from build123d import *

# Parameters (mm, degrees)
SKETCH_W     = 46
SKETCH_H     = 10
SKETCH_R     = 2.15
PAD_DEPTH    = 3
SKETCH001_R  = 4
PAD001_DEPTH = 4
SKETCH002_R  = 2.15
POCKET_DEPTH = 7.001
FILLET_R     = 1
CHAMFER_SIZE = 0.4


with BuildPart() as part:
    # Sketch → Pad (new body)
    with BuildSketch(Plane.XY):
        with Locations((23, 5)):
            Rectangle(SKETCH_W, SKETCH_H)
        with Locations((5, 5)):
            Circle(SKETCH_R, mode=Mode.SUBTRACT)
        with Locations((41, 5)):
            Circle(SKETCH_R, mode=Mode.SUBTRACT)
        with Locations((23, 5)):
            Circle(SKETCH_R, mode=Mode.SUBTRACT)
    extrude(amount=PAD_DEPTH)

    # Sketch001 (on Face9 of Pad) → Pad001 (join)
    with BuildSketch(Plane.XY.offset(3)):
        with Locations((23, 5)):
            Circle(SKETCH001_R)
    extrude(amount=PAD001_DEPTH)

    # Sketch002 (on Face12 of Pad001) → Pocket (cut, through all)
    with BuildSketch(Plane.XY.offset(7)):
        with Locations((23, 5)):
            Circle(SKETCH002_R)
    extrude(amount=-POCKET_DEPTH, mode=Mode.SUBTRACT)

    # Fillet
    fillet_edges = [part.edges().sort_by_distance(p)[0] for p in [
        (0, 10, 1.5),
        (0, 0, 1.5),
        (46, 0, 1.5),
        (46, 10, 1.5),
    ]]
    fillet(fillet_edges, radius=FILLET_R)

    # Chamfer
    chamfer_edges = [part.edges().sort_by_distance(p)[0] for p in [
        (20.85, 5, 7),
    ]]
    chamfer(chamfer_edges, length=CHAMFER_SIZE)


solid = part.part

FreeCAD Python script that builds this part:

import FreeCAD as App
import Part
import Sketcher
from FreeCAD import Vector
Q = App.Units.Quantity


def edges_at(feature, points):
    """Names of the edges that pass closest to the given points."""
    edges = feature.Shape.Edges
    near = lambda p: min(range(len(edges)), key=lambda i: edges[i].distToShape(Part.Vertex(*p))[0])
    return sorted({f"Edge{near(p) + 1}" for p in points})


def add_polygon(sketch, points):
    """Adds a closed chain of lines whose ends are joined by coincident constraints."""
    first, n = sketch.GeometryCount, len(points)
    for a, b in zip(points, points[1:] + points[:1]):
        sketch.addGeometry(Part.LineSegment(App.Vector(*a, 0), App.Vector(*b, 0)), False)
    for i in range(n):
        sketch.addConstraint(Sketcher.Constraint("Coincident", first + i, 2, first + (i + 1) % n, 1))

doc = App.newDocument("Part")
params = doc.addObject("Spreadsheet::Sheet", "Params")
for row, (alias, value) in enumerate([
    ("sketch1_diameter", "4.3 mm"),
    ("sketch1_width", "46 mm"),
    ("sketch1_height", "10 mm"),
    ("pad1_length", "3 mm"),
    ("sketch2_diameter", "8 mm"),
    ("pad2_length", "4 mm"),
    ("sketch3_diameter", "4.3 mm"),
    ("fillet_radius", "1 mm"),
    ("chamfer_size", "0.4 mm"),
], start=1):
    params.set(f"A{row}", alias)
    params.set(f"B{row}", "=" + value)
    params.setAlias(f"B{row}", alias)

body = doc.addObject("PartDesign::Body", "Body")

# Sketch on XY plane
sketch1 = body.newObject("Sketcher::SketchObject", "Sketch")
sketch1.AttachmentSupport = (doc.getObject("XY_Plane"), [""])
sketch1.MapMode = "FlatFace"
add_polygon(sketch1, [(0, 10), (0, 0), (46, 0), (46, 10)])  # lines 0-3
sketch1.addGeometry(Part.Circle(Vector(5, 5, 0), Vector(0, 0, 1), 2.1), False)  # 4
sketch1.addGeometry(Part.Circle(Vector(23, 5, 0), Vector(0, 0, 1), 2.1), False)  # 5
sketch1.addGeometry(Part.Circle(Vector(41, 5, 0), Vector(0, 0, 1), 2.1), False)  # 6
sketch1.addConstraint(Sketcher.Constraint("Vertical", 0))
sketch1.addConstraint(Sketcher.Constraint("Horizontal", 1))
sketch1.addConstraint(Sketcher.Constraint("Vertical", 2))
sketch1.addConstraint(Sketcher.Constraint("Horizontal", 3))
sketch1.addConstraint(Sketcher.Constraint("Coincident", 0, 2, -1, 1))
sketch1.addConstraint(Sketcher.Constraint("Equal", 4, 5))
sketch1.addConstraint(Sketcher.Constraint("Equal", 5, 6))
sketch1.addConstraint(Sketcher.Constraint("Horizontal", 4, 3, 5, 3))
sketch1.addConstraint(Sketcher.Constraint("Horizontal", 5, 3, 6, 3))
sketch1.addConstraint(Sketcher.Constraint("Diameter", 4, Q("4.3 mm")))
sketch1.addConstraint(Sketcher.Constraint("DistanceX", 1, 1, 1, 2, Q("46 mm")))
sketch1.addConstraint(Sketcher.Constraint("DistanceY", 0, 2, 0, 1, Q("10 mm")))
sketch1.addConstraint(Sketcher.Constraint("DistanceX", -1, 1, 4, 3, Q("5 mm")))
sketch1.addConstraint(Sketcher.Constraint("DistanceY", -1, 1, 4, 3, Q("5 mm")))
sketch1.addConstraint(Sketcher.Constraint("DistanceX", -1, 1, 5, 3, Q("23 mm")))
sketch1.addConstraint(Sketcher.Constraint("DistanceX", -1, 1, 6, 3, Q("41 mm")))
sketch1.setExpression("Constraints[13]", "Params.sketch1_diameter")
sketch1.setExpression("Constraints[14]", "Params.sketch1_width")
sketch1.setExpression("Constraints[15]", "Params.sketch1_height")
pad1 = body.newObject("PartDesign::Pad", "Pad")
pad1.Profile = sketch1
pad1.setExpression("Length", "Params.pad1_length")

# Sketch on XY plane
sketch2 = body.newObject("Sketcher::SketchObject", "Sketch001")
sketch2.AttachmentSupport = (doc.getObject("XY_Plane"), [""])
sketch2.MapMode = "FlatFace"
sketch2.AttachmentOffset = App.Placement(Vector(0, 0, 3), App.Rotation())
sketch2.addGeometry(Part.Circle(Vector(23, 5, 0), Vector(0, 0, 1), 4), False)
sketch2.addConstraint(Sketcher.Constraint("Diameter", 0, Q("8 mm")))
sketch2.addConstraint(Sketcher.Constraint("DistanceX", -1, 1, 0, 3, Q("23 mm")))
sketch2.addConstraint(Sketcher.Constraint("DistanceY", -1, 1, 0, 3, Q("5 mm")))
sketch2.setExpression("Constraints[0]", "Params.sketch2_diameter")
pad2 = body.newObject("PartDesign::Pad", "Pad001")
pad2.Profile = sketch2
pad2.setExpression("Length", "Params.pad2_length")

# Sketch on XY plane
sketch3 = body.newObject("Sketcher::SketchObject", "Sketch002")
sketch3.AttachmentSupport = (doc.getObject("XY_Plane"), [""])
sketch3.MapMode = "FlatFace"
sketch3.AttachmentOffset = App.Placement(Vector(0, 0, 7), App.Rotation())
sketch3.addGeometry(Part.Circle(Vector(23, 5, 0), Vector(0, 0, 1), 2.1), False)
sketch3.addConstraint(Sketcher.Constraint("Diameter", 0, Q("4.3 mm")))
sketch3.addConstraint(Sketcher.Constraint("DistanceX", -1, 1, 0, 3, Q("23 mm")))
sketch3.addConstraint(Sketcher.Constraint("DistanceY", -1, 1, 0, 3, Q("5 mm")))
sketch3.setExpression("Constraints[0]", "Params.sketch3_diameter")
pocket1 = body.newObject("PartDesign::Pocket", "Pocket")
pocket1.Profile = sketch3
pocket1.Type = "ThroughAll"
doc.recompute()

fillet = body.newObject("PartDesign::Fillet", "Fillet")
fillet.Base = (pocket1, edges_at(pocket1, [
    (0, 10, 1.5),
    (0, 0, 1.5),
    (46, 0, 1.5),
    (46, 10, 1.5),
]))
fillet.setExpression("Radius", "Params.fillet_radius")
doc.recompute()

chamfer = body.newObject("PartDesign::Chamfer", "Chamfer")
chamfer.Base = (fillet, edges_at(fillet, [(20.85, 5, 7)]))
chamfer.setExpression("Size", "Params.chamfer_size")

doc.recompute()
